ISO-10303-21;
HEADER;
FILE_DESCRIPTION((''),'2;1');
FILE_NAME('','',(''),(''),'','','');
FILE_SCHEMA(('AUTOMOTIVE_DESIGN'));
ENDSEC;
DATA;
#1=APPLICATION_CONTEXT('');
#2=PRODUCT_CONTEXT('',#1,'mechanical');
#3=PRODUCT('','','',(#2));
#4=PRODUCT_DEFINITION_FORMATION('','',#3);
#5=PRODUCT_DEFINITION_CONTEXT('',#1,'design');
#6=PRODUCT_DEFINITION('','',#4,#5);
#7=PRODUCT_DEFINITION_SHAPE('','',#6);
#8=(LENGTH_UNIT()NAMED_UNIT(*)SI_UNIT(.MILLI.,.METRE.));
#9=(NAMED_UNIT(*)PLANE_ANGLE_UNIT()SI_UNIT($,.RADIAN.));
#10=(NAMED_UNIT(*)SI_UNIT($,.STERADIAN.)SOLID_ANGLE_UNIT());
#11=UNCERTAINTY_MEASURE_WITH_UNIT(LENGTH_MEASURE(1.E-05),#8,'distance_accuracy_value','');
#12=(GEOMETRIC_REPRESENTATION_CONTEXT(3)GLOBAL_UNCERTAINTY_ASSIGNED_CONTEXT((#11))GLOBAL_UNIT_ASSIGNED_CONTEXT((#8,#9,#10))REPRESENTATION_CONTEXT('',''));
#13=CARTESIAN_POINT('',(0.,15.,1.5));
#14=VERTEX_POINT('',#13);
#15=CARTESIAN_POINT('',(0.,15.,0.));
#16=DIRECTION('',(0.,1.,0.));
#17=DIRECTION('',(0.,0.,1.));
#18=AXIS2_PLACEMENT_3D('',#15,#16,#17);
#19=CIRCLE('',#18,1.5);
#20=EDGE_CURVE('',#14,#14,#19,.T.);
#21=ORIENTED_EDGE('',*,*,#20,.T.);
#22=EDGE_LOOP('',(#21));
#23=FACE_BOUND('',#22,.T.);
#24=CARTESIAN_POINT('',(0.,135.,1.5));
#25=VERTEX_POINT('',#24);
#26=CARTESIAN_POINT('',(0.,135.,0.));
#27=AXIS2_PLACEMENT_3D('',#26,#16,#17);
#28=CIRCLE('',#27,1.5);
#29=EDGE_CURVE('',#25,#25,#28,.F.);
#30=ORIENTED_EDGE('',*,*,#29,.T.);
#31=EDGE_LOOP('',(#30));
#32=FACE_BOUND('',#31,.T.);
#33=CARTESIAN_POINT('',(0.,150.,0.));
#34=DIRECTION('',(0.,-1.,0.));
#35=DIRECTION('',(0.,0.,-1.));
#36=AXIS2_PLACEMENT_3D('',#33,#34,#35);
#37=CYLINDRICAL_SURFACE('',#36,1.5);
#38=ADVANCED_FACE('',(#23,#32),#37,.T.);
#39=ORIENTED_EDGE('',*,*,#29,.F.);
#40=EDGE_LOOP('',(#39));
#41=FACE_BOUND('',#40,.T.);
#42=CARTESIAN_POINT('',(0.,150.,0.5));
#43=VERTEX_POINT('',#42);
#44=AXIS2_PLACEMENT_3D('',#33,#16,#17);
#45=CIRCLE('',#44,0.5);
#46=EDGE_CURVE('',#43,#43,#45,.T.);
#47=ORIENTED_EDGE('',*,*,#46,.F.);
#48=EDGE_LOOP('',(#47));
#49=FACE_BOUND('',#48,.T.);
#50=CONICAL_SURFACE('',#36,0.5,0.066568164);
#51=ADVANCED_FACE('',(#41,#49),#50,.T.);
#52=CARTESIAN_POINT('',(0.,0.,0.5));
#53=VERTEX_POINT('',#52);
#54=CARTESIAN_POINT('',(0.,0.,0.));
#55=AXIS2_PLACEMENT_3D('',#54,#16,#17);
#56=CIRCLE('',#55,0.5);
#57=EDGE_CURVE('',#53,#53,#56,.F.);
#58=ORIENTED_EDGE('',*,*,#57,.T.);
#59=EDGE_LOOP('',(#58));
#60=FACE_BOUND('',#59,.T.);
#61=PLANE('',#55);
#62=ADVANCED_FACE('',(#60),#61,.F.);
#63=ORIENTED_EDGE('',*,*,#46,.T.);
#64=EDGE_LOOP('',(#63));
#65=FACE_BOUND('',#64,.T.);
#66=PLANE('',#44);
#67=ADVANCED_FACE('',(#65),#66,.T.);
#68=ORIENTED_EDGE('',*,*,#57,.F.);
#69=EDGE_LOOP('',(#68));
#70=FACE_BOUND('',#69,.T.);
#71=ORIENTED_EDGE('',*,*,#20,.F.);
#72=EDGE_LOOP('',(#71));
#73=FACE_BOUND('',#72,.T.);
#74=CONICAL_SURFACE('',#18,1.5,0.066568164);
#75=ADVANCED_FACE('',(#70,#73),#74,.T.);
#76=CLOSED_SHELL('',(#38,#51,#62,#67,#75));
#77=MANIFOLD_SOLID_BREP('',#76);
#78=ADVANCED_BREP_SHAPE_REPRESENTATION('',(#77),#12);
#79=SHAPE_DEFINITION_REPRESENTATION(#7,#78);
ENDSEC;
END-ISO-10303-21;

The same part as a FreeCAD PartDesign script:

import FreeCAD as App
import Part
import Sketcher


def edges_at(feature, points):
    """Names of the edges that pass closest to the given points."""
    edges = feature.Shape.Edges
    near = lambda p: min(range(len(edges)), key=lambda i: edges[i].distToShape(Part.Vertex(*p))[0])
    return sorted({f"Edge{near(p) + 1}" for p in points})

doc = App.newDocument("Part")
body = doc.addObject("PartDesign::Body", "Body")

# Sketch on XZ plane
sketch1 = body.newObject("Sketcher::SketchObject", "Sketch")
sketch1.AttachmentSupport = (doc.getObject("XZ_Plane"), [""])
sketch1.MapMode = "FlatFace"
sketch1.addGeometry(Part.Circle(App.Vector(0, 0, 0), App.Vector(0, 0, 1), 1.5), False)
sketch1.addConstraint([
    Sketcher.Constraint("Coincident", 0, 3, -1, 1),
    Sketcher.Constraint("Diameter", 0, 3.0),
])
pad1 = body.newObject("PartDesign::Pad", "Pad")
pad1.Profile = sketch1
pad1.Length = 150
pad1.Reversed = True
doc.recompute()

chamfer = body.newObject("PartDesign::Chamfer", "Chamfer")
chamfer.Base = (pad1, edges_at(pad1, [(-1.5, 0, 0)]))
chamfer.ChamferType = "Two distances"
chamfer.Size = 1
chamfer.Size2 = 15
chamfer.FlipDirection = True
doc.recompute()

chamfer2 = body.newObject("PartDesign::Chamfer", "Chamfer001")
chamfer2.Base = (chamfer, edges_at(chamfer, [(-1.5, 150, 0)]))
chamfer2.ChamferType = "Two distances"
chamfer2.Size = 1
chamfer2.Size2 = 15
chamfer2.FlipDirection = True

doc.recompute()
